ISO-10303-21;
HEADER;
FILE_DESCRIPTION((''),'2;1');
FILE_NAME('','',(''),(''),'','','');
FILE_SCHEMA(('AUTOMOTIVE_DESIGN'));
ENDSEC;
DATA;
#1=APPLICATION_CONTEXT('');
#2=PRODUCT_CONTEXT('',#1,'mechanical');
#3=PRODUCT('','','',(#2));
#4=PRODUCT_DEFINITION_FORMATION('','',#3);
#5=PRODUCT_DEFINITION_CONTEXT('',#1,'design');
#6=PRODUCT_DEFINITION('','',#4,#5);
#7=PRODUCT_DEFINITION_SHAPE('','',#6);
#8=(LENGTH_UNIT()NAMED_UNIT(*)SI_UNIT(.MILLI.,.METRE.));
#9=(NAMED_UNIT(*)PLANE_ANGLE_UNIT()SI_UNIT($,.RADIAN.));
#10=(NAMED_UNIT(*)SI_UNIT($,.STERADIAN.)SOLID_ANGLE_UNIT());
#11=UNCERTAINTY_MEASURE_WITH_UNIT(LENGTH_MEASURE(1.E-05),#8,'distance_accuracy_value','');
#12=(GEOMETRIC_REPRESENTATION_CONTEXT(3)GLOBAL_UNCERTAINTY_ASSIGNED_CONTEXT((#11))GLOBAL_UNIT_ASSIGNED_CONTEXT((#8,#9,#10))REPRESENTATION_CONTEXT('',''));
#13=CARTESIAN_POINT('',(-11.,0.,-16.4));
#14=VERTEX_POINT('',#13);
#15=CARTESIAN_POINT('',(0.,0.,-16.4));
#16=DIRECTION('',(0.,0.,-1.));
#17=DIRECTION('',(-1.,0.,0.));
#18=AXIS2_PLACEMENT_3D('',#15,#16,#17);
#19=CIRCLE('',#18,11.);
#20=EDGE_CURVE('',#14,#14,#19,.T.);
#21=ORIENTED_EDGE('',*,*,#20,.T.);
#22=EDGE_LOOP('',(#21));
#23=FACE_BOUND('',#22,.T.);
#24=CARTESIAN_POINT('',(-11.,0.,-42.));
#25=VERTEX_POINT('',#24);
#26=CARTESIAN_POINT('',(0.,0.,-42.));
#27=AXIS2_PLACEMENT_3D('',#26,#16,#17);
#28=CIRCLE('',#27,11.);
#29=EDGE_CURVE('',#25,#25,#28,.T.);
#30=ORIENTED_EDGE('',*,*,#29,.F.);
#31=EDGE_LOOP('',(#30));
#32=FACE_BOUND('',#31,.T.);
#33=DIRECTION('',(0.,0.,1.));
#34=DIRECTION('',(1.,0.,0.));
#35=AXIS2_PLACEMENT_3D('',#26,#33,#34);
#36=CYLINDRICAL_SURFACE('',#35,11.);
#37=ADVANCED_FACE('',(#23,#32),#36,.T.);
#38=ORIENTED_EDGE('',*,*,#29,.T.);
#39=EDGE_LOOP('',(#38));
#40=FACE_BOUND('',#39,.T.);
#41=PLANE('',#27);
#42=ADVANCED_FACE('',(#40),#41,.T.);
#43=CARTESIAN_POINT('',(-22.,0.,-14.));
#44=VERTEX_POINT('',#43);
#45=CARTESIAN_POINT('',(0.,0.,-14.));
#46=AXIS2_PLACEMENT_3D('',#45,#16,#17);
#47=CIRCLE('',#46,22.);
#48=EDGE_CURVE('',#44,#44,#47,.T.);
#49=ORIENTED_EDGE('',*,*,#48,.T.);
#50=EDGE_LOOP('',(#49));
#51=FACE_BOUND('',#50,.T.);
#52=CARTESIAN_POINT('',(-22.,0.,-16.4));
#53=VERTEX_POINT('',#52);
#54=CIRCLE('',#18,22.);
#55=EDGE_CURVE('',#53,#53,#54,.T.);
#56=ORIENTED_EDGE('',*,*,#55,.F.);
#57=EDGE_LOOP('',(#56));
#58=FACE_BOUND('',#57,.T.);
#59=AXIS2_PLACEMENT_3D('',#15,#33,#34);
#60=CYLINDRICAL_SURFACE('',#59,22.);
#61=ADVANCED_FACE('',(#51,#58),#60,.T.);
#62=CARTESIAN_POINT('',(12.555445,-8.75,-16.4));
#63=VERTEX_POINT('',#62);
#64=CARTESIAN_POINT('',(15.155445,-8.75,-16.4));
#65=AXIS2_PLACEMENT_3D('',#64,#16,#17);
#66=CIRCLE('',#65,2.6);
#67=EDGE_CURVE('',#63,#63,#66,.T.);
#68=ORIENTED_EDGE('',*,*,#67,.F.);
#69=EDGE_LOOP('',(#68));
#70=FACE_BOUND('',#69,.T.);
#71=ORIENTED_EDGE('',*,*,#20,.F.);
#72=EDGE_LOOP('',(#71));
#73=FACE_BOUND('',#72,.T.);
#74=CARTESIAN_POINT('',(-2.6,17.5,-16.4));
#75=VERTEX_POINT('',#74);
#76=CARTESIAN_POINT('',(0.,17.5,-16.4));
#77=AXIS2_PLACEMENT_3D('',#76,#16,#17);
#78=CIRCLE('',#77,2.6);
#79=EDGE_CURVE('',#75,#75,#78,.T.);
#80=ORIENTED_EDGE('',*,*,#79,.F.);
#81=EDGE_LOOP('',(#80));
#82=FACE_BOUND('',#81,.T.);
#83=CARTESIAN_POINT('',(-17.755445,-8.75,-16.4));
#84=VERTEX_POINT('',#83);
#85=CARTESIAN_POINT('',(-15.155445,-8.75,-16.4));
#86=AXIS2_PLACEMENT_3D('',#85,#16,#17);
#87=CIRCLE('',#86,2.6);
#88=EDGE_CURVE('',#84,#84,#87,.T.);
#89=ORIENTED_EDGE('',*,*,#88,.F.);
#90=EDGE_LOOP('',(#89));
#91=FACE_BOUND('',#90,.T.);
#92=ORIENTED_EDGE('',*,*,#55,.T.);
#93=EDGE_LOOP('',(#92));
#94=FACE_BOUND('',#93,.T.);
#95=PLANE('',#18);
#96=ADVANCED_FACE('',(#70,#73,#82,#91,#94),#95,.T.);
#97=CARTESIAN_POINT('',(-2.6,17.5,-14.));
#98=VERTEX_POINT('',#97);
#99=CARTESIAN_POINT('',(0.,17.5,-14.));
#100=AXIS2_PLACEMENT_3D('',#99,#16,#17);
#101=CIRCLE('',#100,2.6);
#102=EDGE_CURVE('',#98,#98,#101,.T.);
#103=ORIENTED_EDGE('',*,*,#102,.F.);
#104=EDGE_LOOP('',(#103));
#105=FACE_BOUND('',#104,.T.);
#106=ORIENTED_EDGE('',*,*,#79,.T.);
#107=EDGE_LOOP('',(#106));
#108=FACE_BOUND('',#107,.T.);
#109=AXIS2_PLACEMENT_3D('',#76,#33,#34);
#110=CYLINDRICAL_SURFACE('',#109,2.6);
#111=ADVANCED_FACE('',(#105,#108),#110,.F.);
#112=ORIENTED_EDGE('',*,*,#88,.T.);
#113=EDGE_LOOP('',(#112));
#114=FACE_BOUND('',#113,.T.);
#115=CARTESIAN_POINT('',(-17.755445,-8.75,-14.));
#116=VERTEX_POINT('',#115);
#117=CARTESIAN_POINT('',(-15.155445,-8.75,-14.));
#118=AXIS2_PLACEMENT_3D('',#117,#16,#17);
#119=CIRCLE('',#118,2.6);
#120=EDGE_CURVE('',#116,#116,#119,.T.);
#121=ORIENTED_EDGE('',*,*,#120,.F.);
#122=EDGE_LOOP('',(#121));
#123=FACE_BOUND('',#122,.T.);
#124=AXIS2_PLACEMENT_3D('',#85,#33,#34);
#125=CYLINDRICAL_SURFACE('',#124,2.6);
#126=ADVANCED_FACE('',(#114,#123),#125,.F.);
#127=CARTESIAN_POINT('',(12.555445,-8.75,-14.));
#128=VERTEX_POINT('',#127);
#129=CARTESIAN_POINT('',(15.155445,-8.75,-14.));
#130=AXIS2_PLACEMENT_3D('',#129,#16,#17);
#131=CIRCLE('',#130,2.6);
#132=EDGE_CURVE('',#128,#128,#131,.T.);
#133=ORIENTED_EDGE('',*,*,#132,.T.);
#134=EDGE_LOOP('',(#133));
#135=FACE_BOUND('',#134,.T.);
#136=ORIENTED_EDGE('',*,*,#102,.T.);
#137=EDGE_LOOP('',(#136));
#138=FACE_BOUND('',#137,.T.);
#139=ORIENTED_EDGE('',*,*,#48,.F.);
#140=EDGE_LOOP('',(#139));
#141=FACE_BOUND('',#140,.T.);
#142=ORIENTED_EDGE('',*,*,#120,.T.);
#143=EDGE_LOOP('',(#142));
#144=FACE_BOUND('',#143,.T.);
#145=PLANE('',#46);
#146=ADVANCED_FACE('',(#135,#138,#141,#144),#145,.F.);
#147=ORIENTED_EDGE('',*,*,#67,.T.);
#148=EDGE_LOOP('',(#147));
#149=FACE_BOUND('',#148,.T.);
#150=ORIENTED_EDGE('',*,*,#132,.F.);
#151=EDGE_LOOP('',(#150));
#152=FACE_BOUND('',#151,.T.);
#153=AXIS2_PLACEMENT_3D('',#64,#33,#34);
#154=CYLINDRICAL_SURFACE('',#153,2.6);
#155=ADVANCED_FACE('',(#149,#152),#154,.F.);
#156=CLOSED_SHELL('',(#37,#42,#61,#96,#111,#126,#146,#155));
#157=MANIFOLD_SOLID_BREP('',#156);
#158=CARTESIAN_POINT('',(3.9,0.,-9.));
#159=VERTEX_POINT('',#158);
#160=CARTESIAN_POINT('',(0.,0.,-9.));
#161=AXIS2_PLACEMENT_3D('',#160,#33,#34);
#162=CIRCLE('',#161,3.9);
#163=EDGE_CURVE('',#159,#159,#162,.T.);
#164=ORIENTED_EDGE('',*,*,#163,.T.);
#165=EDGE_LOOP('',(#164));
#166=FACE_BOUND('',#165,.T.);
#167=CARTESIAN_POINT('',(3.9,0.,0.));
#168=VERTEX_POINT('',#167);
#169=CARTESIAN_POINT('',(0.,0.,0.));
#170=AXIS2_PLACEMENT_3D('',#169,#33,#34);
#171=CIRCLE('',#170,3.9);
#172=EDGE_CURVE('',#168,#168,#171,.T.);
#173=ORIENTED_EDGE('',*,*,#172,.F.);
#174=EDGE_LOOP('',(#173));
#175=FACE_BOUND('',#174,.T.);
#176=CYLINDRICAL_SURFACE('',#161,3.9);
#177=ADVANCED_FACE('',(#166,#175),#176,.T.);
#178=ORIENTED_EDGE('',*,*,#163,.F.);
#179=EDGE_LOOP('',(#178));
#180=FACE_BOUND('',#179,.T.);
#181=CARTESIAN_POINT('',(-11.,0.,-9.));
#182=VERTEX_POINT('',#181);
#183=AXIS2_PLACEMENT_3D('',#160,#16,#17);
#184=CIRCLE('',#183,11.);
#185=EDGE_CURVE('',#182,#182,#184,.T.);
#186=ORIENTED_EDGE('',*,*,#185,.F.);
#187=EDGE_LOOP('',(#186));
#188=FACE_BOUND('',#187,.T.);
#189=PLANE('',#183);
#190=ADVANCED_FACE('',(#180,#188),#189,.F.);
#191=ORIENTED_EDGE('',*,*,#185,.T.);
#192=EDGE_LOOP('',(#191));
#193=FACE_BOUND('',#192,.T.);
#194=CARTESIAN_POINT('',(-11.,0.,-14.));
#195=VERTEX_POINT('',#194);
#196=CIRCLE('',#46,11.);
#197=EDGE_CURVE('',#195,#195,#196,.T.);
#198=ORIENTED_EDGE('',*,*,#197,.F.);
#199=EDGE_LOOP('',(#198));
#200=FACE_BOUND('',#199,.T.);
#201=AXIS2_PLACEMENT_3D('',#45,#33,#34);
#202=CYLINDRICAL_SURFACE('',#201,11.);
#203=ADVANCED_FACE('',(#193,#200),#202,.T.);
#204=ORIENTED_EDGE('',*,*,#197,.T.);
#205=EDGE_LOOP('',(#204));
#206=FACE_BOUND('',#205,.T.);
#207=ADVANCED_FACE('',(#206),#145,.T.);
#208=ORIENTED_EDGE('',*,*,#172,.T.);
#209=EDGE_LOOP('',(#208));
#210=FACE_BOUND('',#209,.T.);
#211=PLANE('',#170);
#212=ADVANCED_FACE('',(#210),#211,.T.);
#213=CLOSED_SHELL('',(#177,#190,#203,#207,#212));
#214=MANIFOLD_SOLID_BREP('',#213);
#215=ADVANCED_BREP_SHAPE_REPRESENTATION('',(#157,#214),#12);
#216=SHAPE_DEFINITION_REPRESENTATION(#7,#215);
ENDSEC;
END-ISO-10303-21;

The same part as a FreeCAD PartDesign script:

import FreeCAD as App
import Part
import Sketcher
from FreeCAD import Vector
Q = App.Units.Quantity

doc = App.newDocument("Part")
body = doc.addObject("PartDesign::Body", "Body")

# Sketch on XY plane
sketch1 = doc.addObject("Sketcher::SketchObject", "Sketch")
body.addObject(sketch1)
sketch1.AttachmentSupport = (doc.XY_Plane, [""])
sketch1.MapMode = "FlatFace"
sketch1.addGeometry(Part.Circle(Vector(0, 0, 0), Vector(0, 0, 1), 3.9), False)
sketch1.addConstraint(Sketcher.Constraint("Coincident", 0, 3, -1, 1))
sketch1.addConstraint(Sketcher.Constraint("Diameter", 0, Q("7.8 mm")))
pad1 = doc.addObject("PartDesign::Pad", "Pad")
body.addObject(pad1)
pad1.Profile = sketch1
pad1.Length = 9
pad1.Reversed = True

# Sketch on XY plane
sketch2 = doc.addObject("Sketcher::SketchObject", "Sketch001")
body.addObject(sketch2)
sketch2.AttachmentSupport = (doc.XY_Plane, [""])
sketch2.MapMode = "FlatFace"
sketch2.AttachmentOffset = App.Placement(Vector(0, 0, -9), App.Rotation())
sketch2.addGeometry(Part.Circle(Vector(0, 0, 0), Vector(0, 0, 1), 11), False)
sketch2.addConstraint(Sketcher.Constraint("Coincident", 0, 3, -1, 1))
sketch2.addConstraint(Sketcher.Constraint("Diameter", 0, Q("22 mm")))
pad2 = doc.addObject("PartDesign::Pad", "Pad001")
body.addObject(pad2)
pad2.Profile = sketch2
pad2.Length = 5
pad2.Reversed = True
body2 = doc.addObject("PartDesign::Body", "Body001")

# Sketch on XY plane
sketch3 = doc.addObject("Sketcher::SketchObject", "Sketch002")
body2.addObject(sketch3)
sketch3.AttachmentSupport = (doc.getObject("XY_Plane001"), [""])
sketch3.MapMode = "FlatFace"
sketch3.AttachmentOffset = App.Placement(Vector(0, 0, -14), App.Rotation())
sketch3.addGeometry(Part.Circle(Vector(0, 0, 0), Vector(0, 0, 1), 22), False)
sketch3.addGeometry(Part.Circle(Vector(15.2, -8.8, 0), Vector(0, 0, 1), 2.6), False)
sketch3.addGeometry(Part.Circle(Vector(-15.2, -8.8, 0), Vector(0, 0, 1), 2.6), False)
sketch3.addGeometry(Part.Circle(Vector(0, 17.5, 0), Vector(0, 0, 1), 2.6), False)
sketch3.addConstraint(Sketcher.Constraint("Coincident", 0, 3, -1, 1))
sketch3.addConstraint(Sketcher.Constraint("Equal", 1, 2))
sketch3.addConstraint(Sketcher.Constraint("Equal", 2, 3))
sketch3.addConstraint(Sketcher.Constraint("Symmetric", 1, 3, 2, 3, -2))
sketch3.addConstraint(Sketcher.Constraint("PointOnObject", 3, 3, -2))
sketch3.addConstraint(Sketcher.Constraint("Diameter", 0, Q("44 mm")))
sketch3.addConstraint(Sketcher.Constraint("Diameter", 1, Q("5.2 mm")))
sketch3.addConstraint(Sketcher.Constraint("DistanceY", -1, 1, 3, 3, Q("17.5 mm")))
sketch3.addConstraint(Sketcher.Constraint("DistanceY", 1, 3, -1, 1, Q("8.75 mm")))
sketch3.addConstraint(Sketcher.Constraint("DistanceX", 2, 3, 1, 3, Q("30.310889 mm")))
pad3 = doc.addObject("PartDesign::Pad", "Pad002")
body2.addObject(pad3)
pad3.Profile = sketch3
pad3.Length = 2.4
pad3.Reversed = True

# Sketch on XY plane
sketch4 = doc.addObject("Sketcher::SketchObject", "Sketch003")
body2.addObject(sketch4)
sketch4.AttachmentSupport = (doc.getObject("XY_Plane001"), [""])
sketch4.MapMode = "FlatFace"
sketch4.AttachmentOffset = App.Placement(Vector(0, 0, -16.4), App.Rotation())
sketch4.addGeometry(Part.Circle(Vector(0, 0, 0), Vector(0, 0, 1), 11), False)
sketch4.addConstraint(Sketcher.Constraint("Coincident", 0, 3, -1, 1))
sketch4.addConstraint(Sketcher.Constraint("Diameter", 0, Q("22 mm")))
pad4 = doc.addObject("PartDesign::Pad", "Pad003")
body2.addObject(pad4)
pad4.Profile = sketch4
pad4.Length = 25.6
pad4.Reversed = True

doc.recompute()
